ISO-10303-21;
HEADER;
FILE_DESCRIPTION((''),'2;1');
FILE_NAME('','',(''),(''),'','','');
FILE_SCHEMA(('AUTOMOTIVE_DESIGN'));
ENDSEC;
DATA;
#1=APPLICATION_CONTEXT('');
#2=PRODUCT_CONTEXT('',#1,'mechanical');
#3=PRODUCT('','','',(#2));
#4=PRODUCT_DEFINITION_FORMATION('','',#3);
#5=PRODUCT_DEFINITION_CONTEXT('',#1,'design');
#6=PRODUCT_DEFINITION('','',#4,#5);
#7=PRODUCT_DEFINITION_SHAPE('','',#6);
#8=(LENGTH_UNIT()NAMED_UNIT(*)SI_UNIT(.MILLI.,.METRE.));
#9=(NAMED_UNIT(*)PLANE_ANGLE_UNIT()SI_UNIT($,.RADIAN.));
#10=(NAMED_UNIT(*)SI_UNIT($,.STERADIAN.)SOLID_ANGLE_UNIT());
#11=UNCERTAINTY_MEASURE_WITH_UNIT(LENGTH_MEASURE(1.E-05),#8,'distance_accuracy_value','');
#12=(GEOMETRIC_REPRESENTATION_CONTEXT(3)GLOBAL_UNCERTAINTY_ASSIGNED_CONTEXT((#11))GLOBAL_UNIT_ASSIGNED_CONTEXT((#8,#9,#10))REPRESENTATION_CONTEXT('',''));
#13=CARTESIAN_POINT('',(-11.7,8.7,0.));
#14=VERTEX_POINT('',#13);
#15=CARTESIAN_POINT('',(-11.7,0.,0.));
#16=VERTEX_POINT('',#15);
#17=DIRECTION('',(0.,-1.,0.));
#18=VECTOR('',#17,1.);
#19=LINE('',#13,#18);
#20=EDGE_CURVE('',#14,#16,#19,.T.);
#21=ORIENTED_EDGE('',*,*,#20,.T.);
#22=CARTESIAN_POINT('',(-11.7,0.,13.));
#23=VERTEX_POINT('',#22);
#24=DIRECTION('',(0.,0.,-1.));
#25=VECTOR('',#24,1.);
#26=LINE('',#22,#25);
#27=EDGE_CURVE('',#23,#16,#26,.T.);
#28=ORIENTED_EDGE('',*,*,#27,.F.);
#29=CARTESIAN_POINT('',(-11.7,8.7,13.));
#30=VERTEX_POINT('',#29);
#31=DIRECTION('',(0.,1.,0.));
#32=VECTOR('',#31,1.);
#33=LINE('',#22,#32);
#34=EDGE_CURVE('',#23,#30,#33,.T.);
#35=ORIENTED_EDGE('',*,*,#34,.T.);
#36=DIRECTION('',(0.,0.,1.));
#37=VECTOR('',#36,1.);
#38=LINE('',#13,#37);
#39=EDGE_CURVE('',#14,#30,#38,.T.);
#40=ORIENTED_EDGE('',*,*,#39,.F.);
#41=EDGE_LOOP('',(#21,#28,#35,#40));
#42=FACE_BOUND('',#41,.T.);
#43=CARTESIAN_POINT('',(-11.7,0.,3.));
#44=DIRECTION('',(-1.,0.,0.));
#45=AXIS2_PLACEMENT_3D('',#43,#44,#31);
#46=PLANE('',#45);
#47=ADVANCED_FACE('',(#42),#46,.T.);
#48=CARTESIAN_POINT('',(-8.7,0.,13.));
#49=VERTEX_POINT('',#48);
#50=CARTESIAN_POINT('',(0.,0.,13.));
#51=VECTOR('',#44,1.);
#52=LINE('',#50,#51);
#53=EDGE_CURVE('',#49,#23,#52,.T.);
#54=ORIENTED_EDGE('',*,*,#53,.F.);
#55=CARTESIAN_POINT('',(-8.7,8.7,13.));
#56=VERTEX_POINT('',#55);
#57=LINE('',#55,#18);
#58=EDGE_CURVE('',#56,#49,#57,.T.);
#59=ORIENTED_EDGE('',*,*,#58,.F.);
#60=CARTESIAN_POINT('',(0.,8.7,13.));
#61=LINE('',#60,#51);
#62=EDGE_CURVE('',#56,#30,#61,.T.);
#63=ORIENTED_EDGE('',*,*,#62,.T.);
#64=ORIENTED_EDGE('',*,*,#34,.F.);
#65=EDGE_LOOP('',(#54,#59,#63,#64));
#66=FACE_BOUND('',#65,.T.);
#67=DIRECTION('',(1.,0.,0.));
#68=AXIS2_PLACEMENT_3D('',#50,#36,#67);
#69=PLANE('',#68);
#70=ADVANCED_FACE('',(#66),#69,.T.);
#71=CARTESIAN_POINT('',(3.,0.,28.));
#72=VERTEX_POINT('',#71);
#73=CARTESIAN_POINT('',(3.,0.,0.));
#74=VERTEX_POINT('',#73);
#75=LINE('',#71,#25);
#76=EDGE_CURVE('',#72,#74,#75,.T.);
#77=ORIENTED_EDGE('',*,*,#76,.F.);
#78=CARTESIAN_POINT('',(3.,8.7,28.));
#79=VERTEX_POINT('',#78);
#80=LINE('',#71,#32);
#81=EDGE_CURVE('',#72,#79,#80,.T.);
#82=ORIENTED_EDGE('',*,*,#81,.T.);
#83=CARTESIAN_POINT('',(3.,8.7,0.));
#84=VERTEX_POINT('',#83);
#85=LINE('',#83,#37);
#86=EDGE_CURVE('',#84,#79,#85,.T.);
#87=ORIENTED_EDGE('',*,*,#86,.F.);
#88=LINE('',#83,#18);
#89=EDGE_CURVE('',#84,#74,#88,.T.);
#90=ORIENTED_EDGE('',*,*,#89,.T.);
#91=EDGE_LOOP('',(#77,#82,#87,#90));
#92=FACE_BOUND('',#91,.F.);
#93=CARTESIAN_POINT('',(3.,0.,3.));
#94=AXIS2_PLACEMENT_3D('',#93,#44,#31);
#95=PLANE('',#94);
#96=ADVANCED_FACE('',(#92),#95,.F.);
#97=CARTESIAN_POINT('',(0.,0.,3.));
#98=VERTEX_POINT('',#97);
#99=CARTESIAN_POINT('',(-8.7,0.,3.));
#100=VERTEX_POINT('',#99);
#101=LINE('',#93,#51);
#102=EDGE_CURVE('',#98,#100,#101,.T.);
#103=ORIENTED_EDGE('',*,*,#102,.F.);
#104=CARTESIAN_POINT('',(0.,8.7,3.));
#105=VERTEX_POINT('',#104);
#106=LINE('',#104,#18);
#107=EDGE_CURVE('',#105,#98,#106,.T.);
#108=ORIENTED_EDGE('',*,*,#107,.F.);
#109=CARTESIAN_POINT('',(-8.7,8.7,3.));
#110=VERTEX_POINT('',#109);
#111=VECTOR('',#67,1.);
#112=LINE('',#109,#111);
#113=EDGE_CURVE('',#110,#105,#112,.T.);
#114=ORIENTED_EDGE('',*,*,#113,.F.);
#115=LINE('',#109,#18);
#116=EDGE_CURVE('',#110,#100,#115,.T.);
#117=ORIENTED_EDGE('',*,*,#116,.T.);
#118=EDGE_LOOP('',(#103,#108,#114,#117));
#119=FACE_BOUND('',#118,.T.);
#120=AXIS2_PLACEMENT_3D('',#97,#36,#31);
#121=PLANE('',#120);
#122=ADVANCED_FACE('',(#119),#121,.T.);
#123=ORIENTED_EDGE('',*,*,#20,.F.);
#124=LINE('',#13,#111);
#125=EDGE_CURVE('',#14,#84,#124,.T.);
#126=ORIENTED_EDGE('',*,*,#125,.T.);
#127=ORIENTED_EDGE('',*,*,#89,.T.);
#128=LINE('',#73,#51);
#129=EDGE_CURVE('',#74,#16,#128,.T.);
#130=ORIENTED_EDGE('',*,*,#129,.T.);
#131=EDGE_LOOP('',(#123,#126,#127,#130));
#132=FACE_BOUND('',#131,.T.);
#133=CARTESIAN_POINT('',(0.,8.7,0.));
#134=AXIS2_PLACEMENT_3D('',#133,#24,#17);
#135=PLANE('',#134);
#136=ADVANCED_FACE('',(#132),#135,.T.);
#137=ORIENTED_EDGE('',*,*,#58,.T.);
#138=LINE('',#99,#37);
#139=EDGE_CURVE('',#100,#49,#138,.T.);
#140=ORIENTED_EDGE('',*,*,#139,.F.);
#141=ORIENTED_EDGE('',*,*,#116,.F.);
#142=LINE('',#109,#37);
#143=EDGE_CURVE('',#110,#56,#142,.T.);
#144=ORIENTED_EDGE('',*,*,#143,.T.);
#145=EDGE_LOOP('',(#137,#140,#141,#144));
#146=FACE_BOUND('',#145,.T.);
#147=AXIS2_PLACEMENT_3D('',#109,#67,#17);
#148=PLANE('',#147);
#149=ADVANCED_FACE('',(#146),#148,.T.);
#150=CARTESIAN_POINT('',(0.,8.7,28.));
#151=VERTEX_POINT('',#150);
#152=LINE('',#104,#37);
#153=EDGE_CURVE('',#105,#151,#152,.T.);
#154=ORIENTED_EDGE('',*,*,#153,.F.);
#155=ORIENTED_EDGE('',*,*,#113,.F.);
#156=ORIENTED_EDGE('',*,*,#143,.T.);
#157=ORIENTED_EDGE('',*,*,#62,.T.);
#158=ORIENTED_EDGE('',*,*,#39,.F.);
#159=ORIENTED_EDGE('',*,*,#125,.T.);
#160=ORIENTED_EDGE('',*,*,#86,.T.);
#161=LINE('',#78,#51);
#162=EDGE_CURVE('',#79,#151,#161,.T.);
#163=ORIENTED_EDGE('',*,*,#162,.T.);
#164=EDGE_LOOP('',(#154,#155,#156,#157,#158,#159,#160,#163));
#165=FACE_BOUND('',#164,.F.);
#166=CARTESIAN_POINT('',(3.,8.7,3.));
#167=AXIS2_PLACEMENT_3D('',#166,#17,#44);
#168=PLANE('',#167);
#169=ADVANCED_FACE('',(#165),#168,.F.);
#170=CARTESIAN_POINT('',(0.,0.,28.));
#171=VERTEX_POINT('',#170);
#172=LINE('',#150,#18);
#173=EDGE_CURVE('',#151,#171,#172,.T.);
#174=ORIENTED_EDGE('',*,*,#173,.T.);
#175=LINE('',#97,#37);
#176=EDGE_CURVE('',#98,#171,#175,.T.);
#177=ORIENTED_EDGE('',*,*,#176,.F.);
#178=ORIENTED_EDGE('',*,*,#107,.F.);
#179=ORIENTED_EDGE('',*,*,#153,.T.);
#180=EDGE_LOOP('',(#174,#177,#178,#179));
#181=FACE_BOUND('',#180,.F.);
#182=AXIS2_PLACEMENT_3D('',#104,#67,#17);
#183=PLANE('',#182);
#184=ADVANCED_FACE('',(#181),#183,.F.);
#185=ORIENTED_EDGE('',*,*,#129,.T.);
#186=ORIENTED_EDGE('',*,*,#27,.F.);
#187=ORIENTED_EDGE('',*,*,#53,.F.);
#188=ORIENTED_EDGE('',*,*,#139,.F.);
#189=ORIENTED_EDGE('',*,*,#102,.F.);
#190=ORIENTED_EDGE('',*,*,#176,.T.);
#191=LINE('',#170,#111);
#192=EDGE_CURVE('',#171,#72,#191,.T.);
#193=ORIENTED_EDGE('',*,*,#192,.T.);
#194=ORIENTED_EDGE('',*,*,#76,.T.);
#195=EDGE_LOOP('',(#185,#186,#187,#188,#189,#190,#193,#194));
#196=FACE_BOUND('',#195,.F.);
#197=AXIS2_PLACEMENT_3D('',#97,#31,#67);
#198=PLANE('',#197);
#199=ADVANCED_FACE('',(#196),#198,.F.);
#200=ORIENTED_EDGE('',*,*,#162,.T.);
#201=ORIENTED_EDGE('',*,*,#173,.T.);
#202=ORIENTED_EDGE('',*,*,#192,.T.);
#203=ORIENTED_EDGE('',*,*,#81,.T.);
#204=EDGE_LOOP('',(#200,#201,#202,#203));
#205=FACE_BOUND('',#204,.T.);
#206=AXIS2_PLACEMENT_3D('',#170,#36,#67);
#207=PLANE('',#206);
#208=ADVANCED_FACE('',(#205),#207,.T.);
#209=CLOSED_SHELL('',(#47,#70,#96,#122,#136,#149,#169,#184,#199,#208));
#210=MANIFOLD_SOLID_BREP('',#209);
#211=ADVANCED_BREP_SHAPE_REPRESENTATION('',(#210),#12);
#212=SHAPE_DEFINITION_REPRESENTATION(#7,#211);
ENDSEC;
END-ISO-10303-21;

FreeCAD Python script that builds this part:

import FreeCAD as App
import Part
import Sketcher
Q = App.Units.Quantity

doc = App.newDocument("Part")
body = doc.addObject("PartDesign::Body", "Body")

sketch1 = body.newObject("Sketcher::SketchObject", "Sketch")
sketch1.AttachmentSupport = (doc.getObject("XY_Plane"), [""])
sketch1.MapMode = "FlatFace"
sketch1.addGeometry(Part.LineSegment(App.Vector(-9, 0, 0), App.Vector(0, 0, 0)), False)
sketch1.addGeometry(Part.LineSegment(App.Vector(0, 0, 0), App.Vector(0, 9, 0)), False)
sketch1.addGeometry(Part.LineSegment(App.Vector(0, 9, 0), App.Vector(-9, 9, 0)), False)
sketch1.addGeometry(Part.LineSegment(App.Vector(-9, 9, 0), App.Vector(-9, 0, 0)), False)
sketch1.addConstraint(Sketcher.Constraint("Coincident", 0, 2, 1, 1))
sketch1.addConstraint(Sketcher.Constraint("Coincident", 1, 2, 2, 1))
sketch1.addConstraint(Sketcher.Constraint("Coincident", 2, 2, 3, 1))
sketch1.addConstraint(Sketcher.Constraint("Coincident", 3, 2, 0, 1))
sketch1.addConstraint(Sketcher.Constraint("Horizontal", 0))
sketch1.addConstraint(Sketcher.Constraint("Vertical", 1))
sketch1.addConstraint(Sketcher.Constraint("Horizontal", 2))
sketch1.addConstraint(Sketcher.Constraint("Vertical", 3))
sketch1.addConstraint(Sketcher.Constraint("Coincident", 0, 2, -1, 1))
sketch1.addConstraint(Sketcher.Constraint("Equal", 2, 1))
sketch1.addConstraint(Sketcher.Constraint("DistanceX", 0, 1, 0, 2, Q("8.7 mm")))
pad1 = body.newObject("PartDesign::Pad", "Pad")
pad1.Profile = sketch1
pad1.Length = 3

sketch2 = body.newObject("Sketcher::SketchObject", "Sketch001")
sketch2.AttachmentSupport = (doc.getObject("YZ_Plane"), [""])
sketch2.MapMode = "FlatFace"
sketch2.AttachmentOffset = App.Placement(App.Vector(0, 0, -8.7), App.Rotation())
sketch2.addGeometry(Part.LineSegment(App.Vector(8.7, 3, 0), App.Vector(8.7, 0, 0)), False)
sketch2.addGeometry(Part.LineSegment(App.Vector(8.7, 0, 0), App.Vector(0, 0, 0)), False)
sketch2.addGeometry(Part.LineSegment(App.Vector(0, 0, 0), App.Vector(0, 3, 0)), False)
sketch2.addGeometry(Part.LineSegment(App.Vector(0, 3, 0), App.Vector(8.7, 3, 0)), False)
sketch2.addConstraint(Sketcher.Constraint("Coincident", 0, 2, 1, 1))
sketch2.addConstraint(Sketcher.Constraint("Coincident", 1, 2, 2, 1))
sketch2.addConstraint(Sketcher.Constraint("Coincident", 2, 2, 3, 1))
sketch2.addConstraint(Sketcher.Constraint("Coincident", 3, 2, 0, 1))
sketch2.addConstraint(Sketcher.Constraint("Vertical", 0))
sketch2.addConstraint(Sketcher.Constraint("Horizontal", 1))
sketch2.addConstraint(Sketcher.Constraint("Vertical", 2))
sketch2.addConstraint(Sketcher.Constraint("Horizontal", 3))
sketch2.addConstraint(Sketcher.Constraint("Coincident", 1, 2, -1, 1))
sketch2.addConstraint(Sketcher.Constraint("DistanceY", 0, 2, 0, 1, Q("3 mm")))
sketch2.addConstraint(Sketcher.Constraint("DistanceX", 1, 2, 1, 1, Q("8.7 mm")))
pad2 = body.newObject("PartDesign::Pad", "Pad001")
pad2.Profile = sketch2
pad2.Length = 3
pad2.Reversed = True

sketch3 = body.newObject("Sketcher::SketchObject", "Sketch002")
sketch3.AttachmentSupport = (doc.getObject("XY_Plane"), [""])
sketch3.MapMode = "FlatFace"
sketch3.AttachmentOffset = App.Placement(App.Vector(0, 0, 3), App.Rotation())
sketch3.addGeometry(Part.LineSegment(App.Vector(-8.7, 0, 0), App.Vector(-8.7, 8.7, 0)), False)
sketch3.addGeometry(Part.LineSegment(App.Vector(-8.7, 8.7, 0), App.Vector(-11.7, 8.7, 0)), False)
sketch3.addGeometry(Part.LineSegment(App.Vector(-11.7, 8.7, 0), App.Vector(-11.7, 0, 0)), False)
sketch3.addGeometry(Part.LineSegment(App.Vector(-11.7, 0, 0), App.Vector(-8.7, 0, 0)), False)
sketch3.addConstraint(Sketcher.Constraint("Coincident", 0, 2, 1, 1))
sketch3.addConstraint(Sketcher.Constraint("Coincident", 1, 2, 2, 1))
sketch3.addConstraint(Sketcher.Constraint("Coincident", 2, 2, 3, 1))
sketch3.addConstraint(Sketcher.Constraint("Coincident", 3, 2, 0, 1))
sketch3.addConstraint(Sketcher.Constraint("Vertical", 0))
sketch3.addConstraint(Sketcher.Constraint("Horizontal", 1))
sketch3.addConstraint(Sketcher.Constraint("Vertical", 2))
sketch3.addConstraint(Sketcher.Constraint("Horizontal", 3))
sketch3.addConstraint(Sketcher.Constraint("PointOnObject", 2, 2, -1))
sketch3.addConstraint(Sketcher.Constraint("DistanceX", 1, 2, 1, 1, Q("3 mm")))
sketch3.addConstraint(Sketcher.Constraint("DistanceY", 0, 1, 0, 2, Q("8.7 mm")))
sketch3.addConstraint(Sketcher.Constraint("DistanceX", 0, 2, -1, 1, Q("8.7 mm")))
pad3 = body.newObject("PartDesign::Pad", "Pad002")
pad3.Profile = sketch3
pad3.Length = 10

sketch4 = body.newObject("Sketcher::SketchObject", "Sketch003")
sketch4.AttachmentSupport = (doc.getObject("YZ_Plane"), [""])
sketch4.MapMode = "FlatFace"
sketch4.addGeometry(Part.LineSegment(App.Vector(0, 0, 0), App.Vector(8.7, 0, 0)), False)
sketch4.addGeometry(Part.LineSegment(App.Vector(8.7, 0, 0), App.Vector(8.7, 3, 0)), False)
sketch4.addGeometry(Part.LineSegment(App.Vector(8.7, 3, 0), App.Vector(0, 3, 0)), False)
sketch4.addGeometry(Part.LineSegment(App.Vector(0, 3, 0), App.Vector(0, 0, 0)), False)
sketch4.addConstraint(Sketcher.Constraint("Coincident", 0, 2, 1, 1))
sketch4.addConstraint(Sketcher.Constraint("Coincident", 1, 2, 2, 1))
sketch4.addConstraint(Sketcher.Constraint("Coincident", 2, 2, 3, 1))
sketch4.addConstraint(Sketcher.Constraint("Coincident", 3, 2, 0, 1))
sketch4.addConstraint(Sketcher.Constraint("Horizontal", 0))
sketch4.addConstraint(Sketcher.Constraint("Vertical", 1))
sketch4.addConstraint(Sketcher.Constraint("Horizontal", 2))
sketch4.addConstraint(Sketcher.Constraint("Vertical", 3))
sketch4.addConstraint(Sketcher.Constraint("Coincident", 3, 2, -1, 1))
sketch4.addConstraint(Sketcher.Constraint("DistanceY", 1, 1, 1, 2, Q("3 mm")))
sketch4.addConstraint(Sketcher.Constraint("DistanceX", 0, 1, 0, 2, Q("8.7 mm")))
pad4 = body.newObject("PartDesign::Pad", "Pad003")
pad4.Profile = sketch4
pad4.Length = 3

sketch5 = body.newObject("Sketcher::SketchObject", "Sketch004")
sketch5.AttachmentSupport = (doc.getObject("XY_Plane"), [""])
sketch5.MapMode = "FlatFace"
sketch5.AttachmentOffset = App.Placement(App.Vector(0, 0, 3), App.Rotation())
sketch5.addGeometry(Part.LineSegment(App.Vector(3, 0, 0), App.Vector(3, 8.7, 0)), False)
sketch5.addGeometry(Part.LineSegment(App.Vector(3, 8.7, 0), App.Vector(0, 8.7, 0)), False)
sketch5.addGeometry(Part.LineSegment(App.Vector(0, 8.7, 0), App.Vector(0, 0, 0)), False)
sketch5.addGeometry(Part.LineSegment(App.Vector(0, 0, 0), App.Vector(3, 0, 0)), False)
sketch5.addConstraint(Sketcher.Constraint("Coincident", 0, 2, 1, 1))
sketch5.addConstraint(Sketcher.Constraint("Coincident", 1, 2, 2, 1))
sketch5.addConstraint(Sketcher.Constraint("Coincident", 2, 2, 3, 1))
sketch5.addConstraint(Sketcher.Constraint("Coincident", 3, 2, 0, 1))
sketch5.addConstraint(Sketcher.Constraint("Vertical", 0))
sketch5.addConstraint(Sketcher.Constraint("Horizontal", 1))
sketch5.addConstraint(Sketcher.Constraint("Vertical", 2))
sketch5.addConstraint(Sketcher.Constraint("Horizontal", 3))
sketch5.addConstraint(Sketcher.Constraint("Coincident", 2, 2, -1, 1))
sketch5.addConstraint(Sketcher.Constraint("DistanceX", 1, 2, 1, 1, Q("3 mm")))
sketch5.addConstraint(Sketcher.Constraint("DistanceY", 0, 1, 0, 2, Q("8.7 mm")))
pad5 = body.newObject("PartDesign::Pad", "Pad004")
pad5.Profile = sketch5
pad5.Length = 25

doc.recompute()
